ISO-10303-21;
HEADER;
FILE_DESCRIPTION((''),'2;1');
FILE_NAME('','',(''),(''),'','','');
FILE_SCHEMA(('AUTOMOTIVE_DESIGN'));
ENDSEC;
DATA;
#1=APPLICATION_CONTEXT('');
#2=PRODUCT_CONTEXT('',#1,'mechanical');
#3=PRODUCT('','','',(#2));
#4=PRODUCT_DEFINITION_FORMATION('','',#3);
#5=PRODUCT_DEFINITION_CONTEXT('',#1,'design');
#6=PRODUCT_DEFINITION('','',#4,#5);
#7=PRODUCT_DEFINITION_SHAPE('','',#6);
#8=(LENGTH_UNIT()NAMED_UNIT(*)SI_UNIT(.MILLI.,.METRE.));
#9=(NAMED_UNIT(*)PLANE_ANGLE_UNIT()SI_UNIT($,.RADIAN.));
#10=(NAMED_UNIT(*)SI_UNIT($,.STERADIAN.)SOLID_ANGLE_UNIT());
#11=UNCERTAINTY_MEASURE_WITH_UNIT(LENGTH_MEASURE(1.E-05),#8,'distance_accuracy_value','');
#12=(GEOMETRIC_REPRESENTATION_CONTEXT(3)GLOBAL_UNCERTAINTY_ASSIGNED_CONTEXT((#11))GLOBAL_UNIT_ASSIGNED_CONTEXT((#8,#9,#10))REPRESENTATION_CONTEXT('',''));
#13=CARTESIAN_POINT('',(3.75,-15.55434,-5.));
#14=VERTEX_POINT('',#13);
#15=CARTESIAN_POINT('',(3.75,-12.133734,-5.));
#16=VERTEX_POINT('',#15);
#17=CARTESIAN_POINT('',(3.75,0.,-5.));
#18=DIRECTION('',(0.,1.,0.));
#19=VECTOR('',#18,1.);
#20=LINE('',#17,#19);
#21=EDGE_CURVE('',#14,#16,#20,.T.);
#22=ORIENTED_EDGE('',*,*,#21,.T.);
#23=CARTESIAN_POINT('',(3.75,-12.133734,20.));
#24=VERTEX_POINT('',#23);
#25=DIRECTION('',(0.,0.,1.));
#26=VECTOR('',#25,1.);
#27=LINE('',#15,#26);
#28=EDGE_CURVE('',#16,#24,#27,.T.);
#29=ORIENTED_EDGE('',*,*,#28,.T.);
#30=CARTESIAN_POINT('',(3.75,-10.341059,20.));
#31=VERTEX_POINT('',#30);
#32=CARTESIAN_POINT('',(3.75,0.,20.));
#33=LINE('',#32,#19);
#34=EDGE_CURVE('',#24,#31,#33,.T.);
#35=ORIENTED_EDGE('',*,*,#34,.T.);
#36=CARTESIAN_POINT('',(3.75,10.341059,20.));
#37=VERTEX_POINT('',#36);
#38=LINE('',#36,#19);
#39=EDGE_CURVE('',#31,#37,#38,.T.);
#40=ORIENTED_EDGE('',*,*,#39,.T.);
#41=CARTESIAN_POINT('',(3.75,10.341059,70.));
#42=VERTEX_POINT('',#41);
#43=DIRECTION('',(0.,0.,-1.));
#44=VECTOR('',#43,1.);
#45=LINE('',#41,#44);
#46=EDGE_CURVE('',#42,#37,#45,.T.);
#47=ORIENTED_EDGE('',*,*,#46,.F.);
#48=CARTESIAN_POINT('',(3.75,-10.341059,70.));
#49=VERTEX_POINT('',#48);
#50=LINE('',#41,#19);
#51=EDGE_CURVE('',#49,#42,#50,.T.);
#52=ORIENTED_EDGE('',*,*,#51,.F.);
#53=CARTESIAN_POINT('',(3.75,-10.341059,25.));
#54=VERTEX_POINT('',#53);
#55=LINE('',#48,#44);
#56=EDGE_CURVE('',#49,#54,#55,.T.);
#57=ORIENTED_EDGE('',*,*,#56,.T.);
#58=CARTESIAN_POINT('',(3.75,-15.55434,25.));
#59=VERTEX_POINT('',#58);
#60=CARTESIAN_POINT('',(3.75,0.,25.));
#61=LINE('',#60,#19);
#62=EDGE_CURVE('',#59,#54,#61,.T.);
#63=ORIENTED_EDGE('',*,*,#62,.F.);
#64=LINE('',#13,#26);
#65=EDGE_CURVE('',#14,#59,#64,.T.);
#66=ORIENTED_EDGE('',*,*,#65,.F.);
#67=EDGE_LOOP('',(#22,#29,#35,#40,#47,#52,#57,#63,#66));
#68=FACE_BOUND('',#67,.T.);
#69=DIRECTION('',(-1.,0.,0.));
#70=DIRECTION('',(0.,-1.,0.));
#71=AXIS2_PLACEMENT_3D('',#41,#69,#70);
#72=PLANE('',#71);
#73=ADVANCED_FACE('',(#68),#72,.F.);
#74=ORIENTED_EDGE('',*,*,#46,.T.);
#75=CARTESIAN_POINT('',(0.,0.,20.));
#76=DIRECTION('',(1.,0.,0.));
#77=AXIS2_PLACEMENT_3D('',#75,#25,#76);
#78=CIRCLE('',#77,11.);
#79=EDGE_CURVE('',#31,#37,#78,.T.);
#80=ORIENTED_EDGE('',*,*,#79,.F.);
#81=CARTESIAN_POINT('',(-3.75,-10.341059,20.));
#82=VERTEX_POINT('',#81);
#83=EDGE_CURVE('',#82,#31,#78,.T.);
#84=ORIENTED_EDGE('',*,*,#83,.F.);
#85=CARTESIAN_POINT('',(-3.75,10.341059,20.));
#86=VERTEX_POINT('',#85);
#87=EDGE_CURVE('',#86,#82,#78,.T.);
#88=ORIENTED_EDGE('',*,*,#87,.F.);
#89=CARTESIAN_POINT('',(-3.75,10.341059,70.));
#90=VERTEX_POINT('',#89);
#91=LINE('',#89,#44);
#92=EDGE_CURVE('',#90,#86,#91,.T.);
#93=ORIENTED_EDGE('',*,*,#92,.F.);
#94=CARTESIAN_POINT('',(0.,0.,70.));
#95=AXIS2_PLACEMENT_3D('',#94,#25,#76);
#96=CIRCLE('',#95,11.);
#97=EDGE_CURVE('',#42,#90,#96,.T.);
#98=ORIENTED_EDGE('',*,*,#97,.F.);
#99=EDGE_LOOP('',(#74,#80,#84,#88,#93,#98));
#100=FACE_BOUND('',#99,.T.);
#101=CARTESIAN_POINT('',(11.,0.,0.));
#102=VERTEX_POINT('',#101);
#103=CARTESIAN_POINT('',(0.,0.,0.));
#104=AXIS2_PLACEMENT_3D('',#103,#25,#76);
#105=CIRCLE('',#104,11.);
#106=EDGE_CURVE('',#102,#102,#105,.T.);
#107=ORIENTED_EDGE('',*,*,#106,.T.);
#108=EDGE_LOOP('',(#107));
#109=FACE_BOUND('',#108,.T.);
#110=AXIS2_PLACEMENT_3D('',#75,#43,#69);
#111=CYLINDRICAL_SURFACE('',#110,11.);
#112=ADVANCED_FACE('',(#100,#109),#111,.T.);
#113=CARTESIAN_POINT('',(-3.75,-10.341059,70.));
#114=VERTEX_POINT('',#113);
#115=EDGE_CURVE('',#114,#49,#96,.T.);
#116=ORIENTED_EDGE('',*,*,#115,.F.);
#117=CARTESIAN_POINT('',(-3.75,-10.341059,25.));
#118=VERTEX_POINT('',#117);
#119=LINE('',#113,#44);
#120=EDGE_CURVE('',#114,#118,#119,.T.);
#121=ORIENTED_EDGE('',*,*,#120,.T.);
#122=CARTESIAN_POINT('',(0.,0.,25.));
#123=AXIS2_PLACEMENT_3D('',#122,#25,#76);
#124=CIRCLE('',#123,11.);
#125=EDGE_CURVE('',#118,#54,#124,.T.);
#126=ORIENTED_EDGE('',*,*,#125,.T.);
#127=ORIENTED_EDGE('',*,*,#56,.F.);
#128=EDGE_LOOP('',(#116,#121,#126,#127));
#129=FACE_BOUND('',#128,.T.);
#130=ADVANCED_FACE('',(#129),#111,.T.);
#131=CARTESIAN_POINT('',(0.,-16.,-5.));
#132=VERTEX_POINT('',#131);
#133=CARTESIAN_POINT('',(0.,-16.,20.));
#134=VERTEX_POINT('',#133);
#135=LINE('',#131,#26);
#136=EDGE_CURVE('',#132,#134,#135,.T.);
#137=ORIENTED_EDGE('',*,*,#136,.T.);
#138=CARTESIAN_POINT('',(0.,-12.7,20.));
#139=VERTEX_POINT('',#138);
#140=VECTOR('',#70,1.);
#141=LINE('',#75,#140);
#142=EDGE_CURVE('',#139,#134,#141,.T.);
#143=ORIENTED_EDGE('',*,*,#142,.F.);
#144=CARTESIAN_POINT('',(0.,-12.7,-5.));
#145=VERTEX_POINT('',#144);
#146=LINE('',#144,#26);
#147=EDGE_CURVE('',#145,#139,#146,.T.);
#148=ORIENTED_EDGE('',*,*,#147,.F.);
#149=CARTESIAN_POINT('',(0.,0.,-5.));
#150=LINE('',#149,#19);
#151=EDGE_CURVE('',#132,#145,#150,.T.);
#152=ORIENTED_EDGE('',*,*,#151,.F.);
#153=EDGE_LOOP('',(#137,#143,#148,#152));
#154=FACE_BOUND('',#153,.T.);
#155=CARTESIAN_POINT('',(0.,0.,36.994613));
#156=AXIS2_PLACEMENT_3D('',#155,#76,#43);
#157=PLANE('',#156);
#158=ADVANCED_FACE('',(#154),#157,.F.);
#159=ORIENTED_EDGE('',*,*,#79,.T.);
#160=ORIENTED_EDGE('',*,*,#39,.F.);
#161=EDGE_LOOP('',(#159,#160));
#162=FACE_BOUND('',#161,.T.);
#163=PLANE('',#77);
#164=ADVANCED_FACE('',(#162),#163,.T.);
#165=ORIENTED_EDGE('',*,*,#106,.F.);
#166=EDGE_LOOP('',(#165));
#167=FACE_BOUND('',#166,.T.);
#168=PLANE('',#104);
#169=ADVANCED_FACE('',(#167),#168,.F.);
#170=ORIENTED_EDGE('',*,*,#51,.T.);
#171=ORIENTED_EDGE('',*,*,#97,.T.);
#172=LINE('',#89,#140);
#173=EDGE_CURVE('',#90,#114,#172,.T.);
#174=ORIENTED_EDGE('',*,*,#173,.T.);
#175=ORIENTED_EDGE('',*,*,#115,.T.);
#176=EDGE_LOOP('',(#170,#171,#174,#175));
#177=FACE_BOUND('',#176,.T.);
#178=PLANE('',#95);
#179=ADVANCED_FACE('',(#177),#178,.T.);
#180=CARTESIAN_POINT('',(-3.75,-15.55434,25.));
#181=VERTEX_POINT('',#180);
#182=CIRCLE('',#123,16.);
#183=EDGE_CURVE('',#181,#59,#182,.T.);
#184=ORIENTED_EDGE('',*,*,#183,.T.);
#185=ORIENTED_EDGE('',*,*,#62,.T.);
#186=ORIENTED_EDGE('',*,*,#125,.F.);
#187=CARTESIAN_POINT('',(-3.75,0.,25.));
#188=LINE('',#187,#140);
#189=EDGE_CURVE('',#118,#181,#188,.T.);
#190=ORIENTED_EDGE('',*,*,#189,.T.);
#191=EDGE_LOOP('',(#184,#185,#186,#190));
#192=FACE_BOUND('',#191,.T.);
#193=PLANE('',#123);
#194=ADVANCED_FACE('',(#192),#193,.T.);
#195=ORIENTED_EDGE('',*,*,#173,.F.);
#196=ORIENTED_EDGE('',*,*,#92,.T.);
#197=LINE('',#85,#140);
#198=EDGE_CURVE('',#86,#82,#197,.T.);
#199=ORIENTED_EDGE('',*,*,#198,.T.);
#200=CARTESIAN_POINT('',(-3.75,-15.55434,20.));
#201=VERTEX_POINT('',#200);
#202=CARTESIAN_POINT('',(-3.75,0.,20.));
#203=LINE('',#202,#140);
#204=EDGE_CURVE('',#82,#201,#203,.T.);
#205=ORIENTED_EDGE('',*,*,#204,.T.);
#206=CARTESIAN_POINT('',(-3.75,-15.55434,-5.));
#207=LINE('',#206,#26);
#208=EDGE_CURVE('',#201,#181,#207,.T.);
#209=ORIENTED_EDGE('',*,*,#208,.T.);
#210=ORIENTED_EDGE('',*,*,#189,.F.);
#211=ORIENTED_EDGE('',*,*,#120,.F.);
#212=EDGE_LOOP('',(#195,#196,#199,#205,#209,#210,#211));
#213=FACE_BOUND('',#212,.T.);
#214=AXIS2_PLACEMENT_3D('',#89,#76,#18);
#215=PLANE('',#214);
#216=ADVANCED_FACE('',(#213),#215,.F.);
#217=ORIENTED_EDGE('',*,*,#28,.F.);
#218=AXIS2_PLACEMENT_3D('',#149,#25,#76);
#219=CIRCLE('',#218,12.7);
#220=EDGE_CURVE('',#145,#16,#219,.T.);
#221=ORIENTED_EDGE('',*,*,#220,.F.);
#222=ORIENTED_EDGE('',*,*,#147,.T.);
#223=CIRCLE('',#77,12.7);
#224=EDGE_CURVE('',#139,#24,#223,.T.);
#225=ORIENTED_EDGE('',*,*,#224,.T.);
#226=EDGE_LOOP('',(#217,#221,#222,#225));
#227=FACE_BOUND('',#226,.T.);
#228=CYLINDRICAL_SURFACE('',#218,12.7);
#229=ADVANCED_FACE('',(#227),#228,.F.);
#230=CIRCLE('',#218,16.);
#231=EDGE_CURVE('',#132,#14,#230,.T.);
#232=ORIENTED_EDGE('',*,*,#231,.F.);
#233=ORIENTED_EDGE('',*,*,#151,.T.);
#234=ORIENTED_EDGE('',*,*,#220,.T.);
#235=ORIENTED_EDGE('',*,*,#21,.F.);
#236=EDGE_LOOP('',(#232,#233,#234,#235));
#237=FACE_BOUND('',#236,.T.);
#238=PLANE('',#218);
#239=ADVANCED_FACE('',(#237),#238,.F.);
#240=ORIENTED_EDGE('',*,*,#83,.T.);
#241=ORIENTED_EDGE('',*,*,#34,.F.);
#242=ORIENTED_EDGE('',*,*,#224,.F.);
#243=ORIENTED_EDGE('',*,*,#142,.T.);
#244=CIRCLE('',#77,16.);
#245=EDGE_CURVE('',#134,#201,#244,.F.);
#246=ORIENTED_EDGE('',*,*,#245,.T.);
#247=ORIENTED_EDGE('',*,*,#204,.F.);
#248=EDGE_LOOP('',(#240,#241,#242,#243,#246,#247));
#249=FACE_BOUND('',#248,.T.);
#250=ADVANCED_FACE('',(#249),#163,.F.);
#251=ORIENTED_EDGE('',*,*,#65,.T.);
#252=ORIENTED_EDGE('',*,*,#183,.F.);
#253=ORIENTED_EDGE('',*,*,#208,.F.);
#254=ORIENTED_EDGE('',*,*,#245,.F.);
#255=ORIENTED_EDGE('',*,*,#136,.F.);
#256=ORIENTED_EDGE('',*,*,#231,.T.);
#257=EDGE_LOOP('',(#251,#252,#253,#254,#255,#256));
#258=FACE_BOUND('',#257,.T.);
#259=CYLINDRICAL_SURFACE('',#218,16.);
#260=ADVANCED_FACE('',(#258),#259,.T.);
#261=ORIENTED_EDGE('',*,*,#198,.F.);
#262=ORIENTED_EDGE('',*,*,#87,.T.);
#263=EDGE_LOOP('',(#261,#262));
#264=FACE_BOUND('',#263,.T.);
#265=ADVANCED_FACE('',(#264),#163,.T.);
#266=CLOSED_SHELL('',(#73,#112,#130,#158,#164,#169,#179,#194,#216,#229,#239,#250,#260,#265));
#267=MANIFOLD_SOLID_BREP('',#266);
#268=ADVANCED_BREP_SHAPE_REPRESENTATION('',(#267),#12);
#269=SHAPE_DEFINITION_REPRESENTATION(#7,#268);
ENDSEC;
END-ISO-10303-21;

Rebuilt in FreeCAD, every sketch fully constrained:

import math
import FreeCAD as App
import Part
import Sketcher

V = App.Vector


def add_polygon(sketch, points):
    """Adds a closed chain of lines whose ends are joined by coincident constraints."""
    first, n = sketch.GeometryCount, len(points)
    for a, b in zip(points, points[1:] + points[:1]):
        sketch.addGeometry(Part.LineSegment(App.Vector(*a, 0), App.Vector(*b, 0)), False)
    for i in range(n):
        sketch.addConstraint(Sketcher.Constraint("Coincident", first + i, 2, first + (i + 1) % n, 1))

doc = App.newDocument("Part")
body = doc.addObject("PartDesign::Body", "Body")

# Sketch on XY plane
sketch1 = body.newObject("Sketcher::SketchObject", "Sketch")
sketch1.AttachmentSupport = (doc.getObject("XY_Plane"), [""])
sketch1.MapMode = "FlatFace"
sketch1.addGeometry(Part.Circle(V(0, 0, 0), V(0, 0, 1), 11), False)
sketch1.addConstraint(Sketcher.Constraint("Coincident", 0, 3, -1, 1))
sketch1.addConstraint(Sketcher.Constraint("Diameter", 0, 22.0))
pad1 = body.newObject("PartDesign::Pad", "Pad")
pad1.Profile = sketch1
pad1.Length = 20

# Sketch on XY plane
sketch2 = body.newObject("Sketcher::SketchObject", "Sketch001")
sketch2.AttachmentSupport = (doc.getObject("XY_Plane"), [""])
sketch2.MapMode = "FlatFace"
sketch2.AttachmentOffset = App.Placement(V(0, 0, 20), App.Rotation())
sketch2.addGeometry(Part.LineSegment(V(4, -10, 0), V(4, 10, 0)), False)
sketch2.addGeometry(Part.ArcOfCircle(Part.Circle(V(0, 0, 0), V(0, 0, 1), 11), math.radians(70), math.radians(110)), False)
sketch2.addGeometry(Part.LineSegment(V(-4, 10, 0), V(-4, -10, 0)), False)
sketch2.addGeometry(Part.ArcOfCircle(Part.Circle(V(0, 0, 0), V(0, 0, 1), 11), math.radians(-110), math.radians(-70)), False)
sketch2.addConstraint(Sketcher.Constraint("Coincident", 0, 2, 1, 1))
sketch2.addConstraint(Sketcher.Constraint("Coincident", 1, 2, 2, 1))
sketch2.addConstraint(Sketcher.Constraint("Coincident", 2, 2, 3, 1))
sketch2.addConstraint(Sketcher.Constraint("Coincident", 3, 2, 0, 1))
sketch2.addConstraint(Sketcher.Constraint("Vertical", 0))
sketch2.addConstraint(Sketcher.Constraint("Vertical", 2))
sketch2.addConstraint(Sketcher.Constraint("Coincident", 1, 3, -1, 1))
sketch2.addConstraint(Sketcher.Constraint("Coincident", 3, 3, -1, 1))
sketch2.addConstraint(Sketcher.Constraint("Equal", 1, 3))
sketch2.addConstraint(Sketcher.Constraint("Horizontal", 0, 2, 1, 2))
sketch2.addConstraint(Sketcher.Constraint("Radius", 1, 11.0))
sketch2.addConstraint(Sketcher.Constraint("DistanceX", 1, 2, 0, 2, 7.5))
pad2 = body.newObject("PartDesign::Pad", "Pad001")
pad2.Profile = sketch2
pad2.Length = 50

# Sketch on XY plane
sketch3 = body.newObject("Sketcher::SketchObject", "Sketch002")
sketch3.AttachmentSupport = (doc.getObject("XY_Plane"), [""])
sketch3.MapMode = "FlatFace"
sketch3.AttachmentOffset = App.Placement(V(0, 0, 20), App.Rotation())
sketch3.addGeometry(Part.LineSegment(V(-3.8, -10.3, 0), V(-3.8, -12.2, 0)), False)
sketch3.addGeometry(Part.ArcOfCircle(Part.Circle(V(0, 0, 0), V(0, 0, 1), 12.7), math.radians(-107), math.radians(-73)), False)
sketch3.addGeometry(Part.LineSegment(V(3.8, -12.2, 0), V(3.8, -10.3, 0)), False)
sketch3.addGeometry(Part.ArcOfCircle(Part.Circle(V(0, 0, 0), V(0, 0, 1), 11), math.radians(-110), math.radians(-70)), False)
sketch3.addConstraint(Sketcher.Constraint("Coincident", 0, 2, 1, 1))
sketch3.addConstraint(Sketcher.Constraint("Coincident", 1, 2, 2, 1))
sketch3.addConstraint(Sketcher.Constraint("Coincident", 2, 2, 3, 2))
sketch3.addConstraint(Sketcher.Constraint("Coincident", 3, 1, 0, 1))
sketch3.addConstraint(Sketcher.Constraint("Vertical", 0))
sketch3.addConstraint(Sketcher.Constraint("Vertical", 2))
sketch3.addConstraint(Sketcher.Constraint("Coincident", 1, 3, -1, 1))
sketch3.addConstraint(Sketcher.Constraint("Coincident", 3, 3, -1, 1))
sketch3.addConstraint(Sketcher.Constraint("Horizontal", 0, 2, 1, 2))
sketch3.addConstraint(Sketcher.Constraint("Radius", 3, 11.0))
sketch3.addConstraint(Sketcher.Constraint("Radius", 1, 12.725))
sketch3.addConstraint(Sketcher.Constraint("DistanceX", 0, 2, 1, 2, 7.5))
pad3 = body.newObject("PartDesign::Pad", "Pad002")
pad3.Profile = sketch3
pad3.Length = 5

# Sketch on XY plane
sketch4 = body.newObject("Sketcher::SketchObject", "Sketch003")
sketch4.AttachmentSupport = (doc.getObject("XY_Plane"), [""])
sketch4.MapMode = "FlatFace"
sketch4.AttachmentOffset = App.Placement(V(0, 0, 70), App.Rotation())
sketch4.addGeometry(Part.Circle(V(0, 0, 0), V(0, 0, 1), 16), False)
sketch4.addGeometry(Part.Circle(V(0, 0, 0), V(0, 0, 1), 13), False)
sketch4.addConstraint(Sketcher.Constraint("Coincident", 0, 3, -1, 1))
sketch4.addConstraint(Sketcher.Constraint("Coincident", 1, 3, -1, 1))
sketch4.addConstraint(Sketcher.Constraint("Diameter", 1, 25.4))
sketch4.addConstraint(Sketcher.Constraint("Diameter", 0, 32.88141))
pocket1 = body.newObject("PartDesign::Pocket", "Pocket")
pocket1.Profile = sketch4
pocket1.Type = "ThroughAll"
pocket1.Midplane = True

# Sketch on XY plane
sketch5 = body.newObject("Sketcher::SketchObject", "Sketch004")
sketch5.AttachmentSupport = (doc.getObject("XY_Plane"), [""])
sketch5.MapMode = "FlatFace"
sketch5.AttachmentOffset = App.Placement(V(0, 0, 25), App.Rotation())
sketch5.addGeometry(Part.LineSegment(V(3.8, -12.1, 0), V(3.8, -15.6, 0)), False)
sketch5.addGeometry(Part.ArcOfCircle(Part.Circle(V(0, 0, 0), V(0, 0, 1), 16), math.radians(-104), math.radians(-76)), False)
sketch5.addGeometry(Part.LineSegment(V(-3.8, -15.6, 0), V(-3.8, -12.1, 0)), False)
sketch5.addGeometry(Part.ArcOfCircle(Part.Circle(V(0, 0, 0), V(0, 0, 1), 12.7), math.radians(-107), math.radians(-73)), False)
sketch5.addConstraint(Sketcher.Constraint("Coincident", 0, 2, 1, 2))
sketch5.addConstraint(Sketcher.Constraint("Coincident", 1, 1, 2, 1))
sketch5.addConstraint(Sketcher.Constraint("Coincident", 2, 2, 3, 1))
sketch5.addConstraint(Sketcher.Constraint("Coincident", 3, 2, 0, 1))
sketch5.addConstraint(Sketcher.Constraint("Vertical", 0))
sketch5.addConstraint(Sketcher.Constraint("Vertical", 2))
sketch5.addConstraint(Sketcher.Constraint("Coincident", 1, 3, -1, 1))
sketch5.addConstraint(Sketcher.Constraint("Coincident", 3, 3, -1, 1))
sketch5.addConstraint(Sketcher.Constraint("Horizontal", 0, 2, 1, 1))
sketch5.addConstraint(Sketcher.Constraint("Radius", 1, 16.0))
sketch5.addConstraint(Sketcher.Constraint("Radius", 3, 12.7))
sketch5.addConstraint(Sketcher.Constraint("DistanceX", 1, 1, 0, 2, 7.5))
pad4 = body.newObject("PartDesign::Pad", "Pad003")
pad4.Profile = sketch5
pad4.Length = 30
pad4.Reversed = True

# Sketch on XY plane
sketch6 = body.newObject("Sketcher::SketchObject", "Sketch005")
sketch6.AttachmentSupport = (doc.getObject("XY_Plane"), [""])
sketch6.MapMode = "FlatFace"
sketch6.AttachmentOffset = App.Placement(V(0, 0, -5), App.Rotation())
add_polygon(sketch6, [(0, -12.1), (0, -28.7), (-3.8, -28.7), (-3.8, -12.1)])  # lines 0-3
sketch6.addConstraint(Sketcher.Constraint("Vertical", 0))
sketch6.addConstraint(Sketcher.Constraint("Horizontal", 1))
sketch6.addConstraint(Sketcher.Constraint("Vertical", 2))
sketch6.addConstraint(Sketcher.Constraint("Horizontal", 3))
sketch6.addConstraint(Sketcher.Constraint("PointOnObject", 0, 2, -2))
sketch6.addConstraint(Sketcher.Constraint("DistanceX", 1, 2, 1, 1, 3.75))
sketch6.addConstraint(Sketcher.Constraint("DistanceY", 0, 2, 0, 1, 16.575716))
sketch6.addConstraint(Sketcher.Constraint("DistanceY", 0, 2, -1, 1, 28.70945))
pocket2 = body.newObject("PartDesign::Pocket", "Pocket001")
pocket2.Profile = sketch6
pocket2.Length = 25
pocket2.Reversed = True

doc.recompute()
